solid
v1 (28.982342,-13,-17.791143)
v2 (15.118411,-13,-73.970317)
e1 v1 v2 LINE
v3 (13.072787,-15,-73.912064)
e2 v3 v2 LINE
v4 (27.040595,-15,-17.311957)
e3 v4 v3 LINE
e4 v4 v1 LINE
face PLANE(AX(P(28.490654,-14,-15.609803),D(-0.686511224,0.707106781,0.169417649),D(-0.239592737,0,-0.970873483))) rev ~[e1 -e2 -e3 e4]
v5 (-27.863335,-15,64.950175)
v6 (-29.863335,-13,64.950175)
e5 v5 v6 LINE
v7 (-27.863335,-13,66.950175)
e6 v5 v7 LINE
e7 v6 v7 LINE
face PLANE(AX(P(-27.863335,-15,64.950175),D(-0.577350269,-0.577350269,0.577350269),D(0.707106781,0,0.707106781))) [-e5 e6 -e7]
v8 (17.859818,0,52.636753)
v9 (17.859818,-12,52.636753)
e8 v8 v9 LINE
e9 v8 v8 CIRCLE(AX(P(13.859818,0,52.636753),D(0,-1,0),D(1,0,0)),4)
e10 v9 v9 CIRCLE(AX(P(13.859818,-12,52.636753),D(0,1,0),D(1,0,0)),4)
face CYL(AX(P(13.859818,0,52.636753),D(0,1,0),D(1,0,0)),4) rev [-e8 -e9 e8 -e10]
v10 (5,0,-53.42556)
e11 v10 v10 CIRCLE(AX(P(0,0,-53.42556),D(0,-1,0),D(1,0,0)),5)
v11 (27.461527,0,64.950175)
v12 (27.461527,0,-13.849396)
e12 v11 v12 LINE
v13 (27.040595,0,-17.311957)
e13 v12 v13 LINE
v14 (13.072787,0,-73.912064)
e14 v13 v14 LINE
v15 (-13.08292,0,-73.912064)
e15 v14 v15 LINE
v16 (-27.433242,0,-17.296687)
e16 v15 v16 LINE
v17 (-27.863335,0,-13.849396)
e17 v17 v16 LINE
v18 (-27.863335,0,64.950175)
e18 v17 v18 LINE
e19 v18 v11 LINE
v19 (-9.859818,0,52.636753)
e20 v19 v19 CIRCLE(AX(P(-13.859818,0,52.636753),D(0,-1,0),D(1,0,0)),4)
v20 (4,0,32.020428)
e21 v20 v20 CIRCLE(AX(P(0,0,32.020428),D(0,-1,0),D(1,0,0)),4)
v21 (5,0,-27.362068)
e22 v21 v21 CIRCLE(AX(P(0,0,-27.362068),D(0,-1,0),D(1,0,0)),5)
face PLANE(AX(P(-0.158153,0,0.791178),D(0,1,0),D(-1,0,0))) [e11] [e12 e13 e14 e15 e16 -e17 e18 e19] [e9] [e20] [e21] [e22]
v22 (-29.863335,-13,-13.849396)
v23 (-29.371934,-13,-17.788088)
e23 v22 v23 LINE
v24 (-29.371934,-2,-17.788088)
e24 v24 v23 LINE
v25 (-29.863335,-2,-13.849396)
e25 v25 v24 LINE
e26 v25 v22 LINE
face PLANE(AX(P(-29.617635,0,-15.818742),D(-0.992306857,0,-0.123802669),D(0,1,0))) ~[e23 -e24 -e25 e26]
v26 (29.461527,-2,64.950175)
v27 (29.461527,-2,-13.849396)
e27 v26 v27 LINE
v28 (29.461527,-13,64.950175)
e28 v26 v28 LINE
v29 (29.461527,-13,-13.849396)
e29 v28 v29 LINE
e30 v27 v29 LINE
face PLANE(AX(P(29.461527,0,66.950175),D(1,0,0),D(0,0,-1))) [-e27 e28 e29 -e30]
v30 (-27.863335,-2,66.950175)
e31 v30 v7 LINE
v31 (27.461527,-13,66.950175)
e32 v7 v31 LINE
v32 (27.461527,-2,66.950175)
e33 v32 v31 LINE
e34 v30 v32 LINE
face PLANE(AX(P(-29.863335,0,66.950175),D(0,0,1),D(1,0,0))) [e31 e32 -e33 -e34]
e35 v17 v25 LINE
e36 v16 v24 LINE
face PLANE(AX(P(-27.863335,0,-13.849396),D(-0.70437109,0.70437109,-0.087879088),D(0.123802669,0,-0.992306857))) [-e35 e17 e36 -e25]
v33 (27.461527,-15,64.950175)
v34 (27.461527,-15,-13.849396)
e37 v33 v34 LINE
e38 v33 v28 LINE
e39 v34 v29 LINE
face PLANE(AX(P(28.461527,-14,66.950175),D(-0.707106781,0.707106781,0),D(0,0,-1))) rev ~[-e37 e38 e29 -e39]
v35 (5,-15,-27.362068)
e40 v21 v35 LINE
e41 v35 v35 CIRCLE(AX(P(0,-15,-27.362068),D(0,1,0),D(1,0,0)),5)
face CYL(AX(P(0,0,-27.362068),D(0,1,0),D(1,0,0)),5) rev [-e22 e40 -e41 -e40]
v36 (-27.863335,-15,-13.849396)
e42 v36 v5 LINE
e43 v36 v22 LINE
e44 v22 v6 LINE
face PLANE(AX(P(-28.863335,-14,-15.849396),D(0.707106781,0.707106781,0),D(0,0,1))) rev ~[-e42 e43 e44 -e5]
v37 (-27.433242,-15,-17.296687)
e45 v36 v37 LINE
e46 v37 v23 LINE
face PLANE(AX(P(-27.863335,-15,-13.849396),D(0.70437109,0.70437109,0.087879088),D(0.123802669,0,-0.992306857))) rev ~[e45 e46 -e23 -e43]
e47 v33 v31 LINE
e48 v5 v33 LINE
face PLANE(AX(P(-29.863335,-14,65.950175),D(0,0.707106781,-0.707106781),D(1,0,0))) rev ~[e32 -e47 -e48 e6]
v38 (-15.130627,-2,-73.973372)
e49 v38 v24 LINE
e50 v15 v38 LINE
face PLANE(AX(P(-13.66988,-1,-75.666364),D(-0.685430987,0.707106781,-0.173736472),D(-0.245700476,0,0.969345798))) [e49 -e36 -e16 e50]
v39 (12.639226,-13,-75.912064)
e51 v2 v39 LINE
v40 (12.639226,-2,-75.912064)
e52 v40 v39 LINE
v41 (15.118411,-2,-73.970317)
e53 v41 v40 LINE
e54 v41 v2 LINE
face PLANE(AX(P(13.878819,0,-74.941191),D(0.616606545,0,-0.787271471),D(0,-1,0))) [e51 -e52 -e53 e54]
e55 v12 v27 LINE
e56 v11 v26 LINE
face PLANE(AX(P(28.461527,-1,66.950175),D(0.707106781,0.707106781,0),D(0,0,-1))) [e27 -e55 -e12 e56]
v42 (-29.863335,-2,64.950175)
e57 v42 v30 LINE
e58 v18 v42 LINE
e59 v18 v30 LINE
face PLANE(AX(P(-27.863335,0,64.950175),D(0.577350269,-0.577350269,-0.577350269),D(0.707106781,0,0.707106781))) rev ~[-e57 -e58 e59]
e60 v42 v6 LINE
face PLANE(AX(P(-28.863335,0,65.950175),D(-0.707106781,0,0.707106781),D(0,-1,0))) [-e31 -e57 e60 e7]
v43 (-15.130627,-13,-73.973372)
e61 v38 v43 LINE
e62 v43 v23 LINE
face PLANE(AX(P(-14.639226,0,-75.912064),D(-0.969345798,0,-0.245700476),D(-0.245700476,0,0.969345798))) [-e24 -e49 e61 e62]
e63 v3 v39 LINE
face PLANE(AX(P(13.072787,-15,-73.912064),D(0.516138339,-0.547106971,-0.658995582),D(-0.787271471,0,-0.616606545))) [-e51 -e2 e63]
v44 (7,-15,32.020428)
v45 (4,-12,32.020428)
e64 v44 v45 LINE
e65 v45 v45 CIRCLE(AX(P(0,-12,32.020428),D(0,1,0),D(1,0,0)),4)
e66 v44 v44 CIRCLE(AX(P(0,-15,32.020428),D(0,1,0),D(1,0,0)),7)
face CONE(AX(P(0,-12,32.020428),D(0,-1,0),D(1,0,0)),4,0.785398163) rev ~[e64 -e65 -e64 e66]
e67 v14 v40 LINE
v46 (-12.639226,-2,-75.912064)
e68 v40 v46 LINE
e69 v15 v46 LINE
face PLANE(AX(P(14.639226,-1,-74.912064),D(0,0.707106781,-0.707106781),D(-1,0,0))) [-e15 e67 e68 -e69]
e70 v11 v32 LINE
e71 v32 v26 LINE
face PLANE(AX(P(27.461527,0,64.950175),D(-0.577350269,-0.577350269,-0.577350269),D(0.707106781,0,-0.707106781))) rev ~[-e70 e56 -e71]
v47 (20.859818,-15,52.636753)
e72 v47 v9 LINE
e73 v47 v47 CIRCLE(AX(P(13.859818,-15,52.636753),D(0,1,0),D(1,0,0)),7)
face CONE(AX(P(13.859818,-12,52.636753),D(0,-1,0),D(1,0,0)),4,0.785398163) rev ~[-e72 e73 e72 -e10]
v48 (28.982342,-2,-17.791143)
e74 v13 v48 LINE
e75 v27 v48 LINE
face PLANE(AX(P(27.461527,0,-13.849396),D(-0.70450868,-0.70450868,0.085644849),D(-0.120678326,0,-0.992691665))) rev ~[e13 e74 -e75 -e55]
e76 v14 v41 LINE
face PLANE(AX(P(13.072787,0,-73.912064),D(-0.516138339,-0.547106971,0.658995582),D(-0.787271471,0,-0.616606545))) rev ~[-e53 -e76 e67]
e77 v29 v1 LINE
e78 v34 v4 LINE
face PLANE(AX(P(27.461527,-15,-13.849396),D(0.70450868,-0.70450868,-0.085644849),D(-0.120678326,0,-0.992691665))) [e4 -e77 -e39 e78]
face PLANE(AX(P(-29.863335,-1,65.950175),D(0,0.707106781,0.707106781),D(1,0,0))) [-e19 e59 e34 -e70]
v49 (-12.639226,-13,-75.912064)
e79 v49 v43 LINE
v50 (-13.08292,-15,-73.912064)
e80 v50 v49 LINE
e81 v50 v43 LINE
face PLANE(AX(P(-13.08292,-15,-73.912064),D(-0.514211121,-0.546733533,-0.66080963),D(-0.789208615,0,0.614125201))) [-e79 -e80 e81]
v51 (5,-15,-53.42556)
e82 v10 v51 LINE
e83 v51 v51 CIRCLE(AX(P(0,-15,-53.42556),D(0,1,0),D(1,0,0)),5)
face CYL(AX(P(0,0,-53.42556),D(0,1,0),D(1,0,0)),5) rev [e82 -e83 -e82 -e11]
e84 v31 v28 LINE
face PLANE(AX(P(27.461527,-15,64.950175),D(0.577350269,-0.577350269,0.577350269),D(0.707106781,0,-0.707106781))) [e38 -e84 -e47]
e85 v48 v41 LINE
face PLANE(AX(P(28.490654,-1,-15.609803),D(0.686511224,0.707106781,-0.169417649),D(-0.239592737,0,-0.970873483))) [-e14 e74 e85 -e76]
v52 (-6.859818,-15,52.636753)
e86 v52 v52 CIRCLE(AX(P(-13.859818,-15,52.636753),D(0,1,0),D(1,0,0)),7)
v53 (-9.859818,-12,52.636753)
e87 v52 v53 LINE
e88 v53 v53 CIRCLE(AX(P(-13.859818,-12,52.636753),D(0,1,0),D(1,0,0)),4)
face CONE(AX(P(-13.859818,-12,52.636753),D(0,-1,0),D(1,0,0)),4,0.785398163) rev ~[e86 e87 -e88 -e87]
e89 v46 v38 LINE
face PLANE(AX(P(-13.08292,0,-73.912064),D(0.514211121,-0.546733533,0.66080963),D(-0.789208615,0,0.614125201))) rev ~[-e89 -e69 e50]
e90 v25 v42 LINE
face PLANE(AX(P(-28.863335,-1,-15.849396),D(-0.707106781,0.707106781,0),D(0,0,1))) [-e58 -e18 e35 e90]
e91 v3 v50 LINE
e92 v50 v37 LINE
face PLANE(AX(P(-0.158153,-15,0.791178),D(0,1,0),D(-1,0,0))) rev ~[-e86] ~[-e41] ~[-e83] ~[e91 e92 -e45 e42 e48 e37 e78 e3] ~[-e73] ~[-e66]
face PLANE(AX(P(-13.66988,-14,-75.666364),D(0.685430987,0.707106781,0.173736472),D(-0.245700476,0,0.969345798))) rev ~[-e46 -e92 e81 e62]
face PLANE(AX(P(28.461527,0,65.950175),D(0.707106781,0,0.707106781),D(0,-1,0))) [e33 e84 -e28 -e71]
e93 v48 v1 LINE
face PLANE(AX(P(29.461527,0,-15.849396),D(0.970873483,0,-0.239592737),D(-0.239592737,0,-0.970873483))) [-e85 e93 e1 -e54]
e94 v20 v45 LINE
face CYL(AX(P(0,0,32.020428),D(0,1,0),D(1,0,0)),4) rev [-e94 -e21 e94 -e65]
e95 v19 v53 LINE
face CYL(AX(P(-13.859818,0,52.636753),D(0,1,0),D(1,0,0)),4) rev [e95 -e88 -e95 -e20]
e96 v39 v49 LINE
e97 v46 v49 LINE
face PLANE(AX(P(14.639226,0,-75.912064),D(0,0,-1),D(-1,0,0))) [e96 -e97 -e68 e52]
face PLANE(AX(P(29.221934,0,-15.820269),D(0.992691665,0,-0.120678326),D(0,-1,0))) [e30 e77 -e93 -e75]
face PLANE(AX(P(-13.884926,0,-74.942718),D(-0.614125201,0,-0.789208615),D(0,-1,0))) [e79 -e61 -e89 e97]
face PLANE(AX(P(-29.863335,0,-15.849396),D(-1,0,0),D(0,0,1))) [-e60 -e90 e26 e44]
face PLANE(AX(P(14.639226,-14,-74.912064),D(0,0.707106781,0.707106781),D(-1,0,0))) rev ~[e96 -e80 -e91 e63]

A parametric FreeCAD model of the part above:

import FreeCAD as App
import Part
import Sketcher
from FreeCAD import Vector


def edges_at(feature, points):
    """Names of the edges that pass closest to the given points."""
    edges = feature.Shape.Edges
    near = lambda p: min(range(len(edges)), key=lambda i: edges[i].distToShape(Part.Vertex(*p))[0])
    return sorted({f"Edge{near(p) + 1}" for p in points})


def add_polygon(sketch, points):
    """Adds a closed chain of lines whose ends are joined by coincident constraints."""
    first, n = sketch.GeometryCount, len(points)
    for a, b in zip(points, points[1:] + points[:1]):
        sketch.addGeometry(Part.LineSegment(App.Vector(*a, 0), App.Vector(*b, 0)), False)
    for i in range(n):
        sketch.addConstraint(Sketcher.Constraint("Coincident", first + i, 2, first + (i + 1) % n, 1))

doc = App.newDocument("Part")
body = doc.addObject("PartDesign::Body", "Body")

# Sketch on XZ plane
sketch1 = body.newObject("Sketcher::SketchObject", "Sketch")
sketch1.AttachmentSupport = (doc.getObject("XZ_Plane"), [""])
sketch1.MapMode = "FlatFace"
add_polygon(sketch1, [(-30, 67), (-30, -16), (-15, -76), (15, -76), (29, -16), (29, 67)])  # lines 0-5
sketch1.addConstraint([
    Sketcher.Constraint("Vertical", 0),
    Sketcher.Constraint("Horizontal", 2),
    Sketcher.Constraint("Vertical", 4),
    Sketcher.Constraint("Horizontal", 5),
    Sketcher.Constraint("Horizontal", 0, 2, 3, 2),
    Sketcher.Constraint("DistanceX", 5, 2, 5, 1, 59.324862),
    Sketcher.Constraint("DistanceY", 0, 2, 0, 1, 82.799571),
    Sketcher.Constraint("DistanceX", 2, 2, 3, 2, 14.822301),
    Sketcher.Constraint("DistanceX", 2, 1, 2, 2, 29.278452),
    Sketcher.Constraint("DistanceY", 1, 2, 0, 2, 60.062668),
    Sketcher.Constraint("DistanceX", 0, 2, -1, 1, 29.863335),
    Sketcher.Constraint("DistanceY", 0, 2, -1, 1, 15.849396),
])
pad1 = body.newObject("PartDesign::Pad", "Pad")
pad1.Profile = sketch1
pad1.Length = 15
doc.recompute()

chamfer = body.newObject("PartDesign::Chamfer", "Chamfer")
chamfer.Base = (pad1, ["Edge1"])
chamfer.UseAllEdges = True
chamfer.Size = 2

# Sketch on XZ plane
sketch2 = body.newObject("Sketcher::SketchObject", "Sketch001")
sketch2.AttachmentSupport = (doc.getObject("XZ_Plane"), [""])
sketch2.MapMode = "FlatFace"
sketch2.addGeometry([
    Part.Circle(Vector(-13.9, 52.6, 0), Vector(0, 0, 1), 4),  # 0
    Part.Circle(Vector(13.9, 52.6, 0), Vector(0, 0, 1), 4),  # 1
    Part.Circle(Vector(0, 32, 0), Vector(0, 0, 1), 4),  # 2
    Part.Circle(Vector(0, -27.4, 0), Vector(0, 0, 1), 5),  # 3
    Part.Circle(Vector(0, -53.4, 0), Vector(0, 0, 1), 5),  # 4
], False)
sketch2.addConstraint([
    Sketcher.Constraint("Equal", 0, 1),
    Sketcher.Constraint("Equal", 1, 2),
    Sketcher.Constraint("Equal", 3, 4),
    Sketcher.Constraint("Symmetric", 0, 3, 1, 3, -2),
    Sketcher.Constraint("PointOnObject", 2, 3, -2),
    Sketcher.Constraint("PointOnObject", 3, 3, -2),
    Sketcher.Constraint("PointOnObject", 4, 3, -2),
    Sketcher.Constraint("Diameter", 0, 8.0),
    Sketcher.Constraint("Diameter", 3, 10.0),
    Sketcher.Constraint("DistanceX", 0, 3, -1, 1, 13.859818),
    Sketcher.Constraint("DistanceY", -1, 1, 2, 3, 32.020428),
    Sketcher.Constraint("DistanceY", 3, 3, -1, 1, 27.362068),
    Sketcher.Constraint("DistanceY", 4, 3, -1, 1, 53.42556),
    Sketcher.Constraint("DistanceY", 3, 3, 0, 3, 79.998821),
])
pocket1 = body.newObject("PartDesign::Pocket", "Pocket")
pocket1.Profile = sketch2
pocket1.Type = "ThroughAll"
pocket1.Reversed = True
doc.recompute()

chamfer2 = body.newObject("PartDesign::Chamfer", "Chamfer001")
chamfer2.Base = (pocket1, edges_at(pocket1, [(-17.86, -15, 52.637), (9.86, -15, 52.637), (-4, -15, 32.02)]))
chamfer2.Size = 3

doc.recompute()
